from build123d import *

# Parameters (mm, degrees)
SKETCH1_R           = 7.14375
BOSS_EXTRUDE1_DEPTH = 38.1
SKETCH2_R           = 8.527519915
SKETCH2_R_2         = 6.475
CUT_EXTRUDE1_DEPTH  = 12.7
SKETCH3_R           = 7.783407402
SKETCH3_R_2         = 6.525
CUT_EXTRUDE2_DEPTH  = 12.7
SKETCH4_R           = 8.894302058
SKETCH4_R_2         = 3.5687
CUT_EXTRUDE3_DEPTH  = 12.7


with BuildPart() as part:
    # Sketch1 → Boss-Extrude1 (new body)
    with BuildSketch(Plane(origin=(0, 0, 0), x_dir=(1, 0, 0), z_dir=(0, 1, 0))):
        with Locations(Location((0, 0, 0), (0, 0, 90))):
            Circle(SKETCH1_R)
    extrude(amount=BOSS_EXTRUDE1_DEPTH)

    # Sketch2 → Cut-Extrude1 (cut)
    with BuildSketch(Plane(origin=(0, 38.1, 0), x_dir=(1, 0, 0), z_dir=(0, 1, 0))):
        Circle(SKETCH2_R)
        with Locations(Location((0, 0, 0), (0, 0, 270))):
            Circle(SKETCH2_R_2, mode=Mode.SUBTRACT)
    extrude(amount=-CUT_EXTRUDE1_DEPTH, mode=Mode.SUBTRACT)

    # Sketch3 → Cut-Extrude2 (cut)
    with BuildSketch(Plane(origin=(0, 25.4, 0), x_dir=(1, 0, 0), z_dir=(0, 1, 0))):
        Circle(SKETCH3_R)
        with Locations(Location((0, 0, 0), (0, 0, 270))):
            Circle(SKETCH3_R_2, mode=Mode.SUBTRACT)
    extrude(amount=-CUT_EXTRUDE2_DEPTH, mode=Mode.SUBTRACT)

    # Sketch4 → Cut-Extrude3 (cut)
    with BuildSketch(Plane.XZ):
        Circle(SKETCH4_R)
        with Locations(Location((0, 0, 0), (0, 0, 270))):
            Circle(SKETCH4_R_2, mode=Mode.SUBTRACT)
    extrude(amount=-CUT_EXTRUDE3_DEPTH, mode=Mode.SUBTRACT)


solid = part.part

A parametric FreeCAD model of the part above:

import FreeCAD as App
import Part
import Sketcher
from FreeCAD import Vector
Q = App.Units.Quantity

doc = App.newDocument("Part")
body = doc.addObject("PartDesign::Body", "Body")

sketch1 = doc.addObject("Sketcher::SketchObject", "Sketch")
body.addObject(sketch1)
sketch1.AttachmentSupport = (doc.XZ_Plane, [""])
sketch1.MapMode = "FlatFace"
sketch1.addGeometry(Part.Circle(Vector(0, 0, 0), Vector(0, 0, 1), 7), False)
sketch1.addConstraint(Sketcher.Constraint("Coincident", 0, 3, -1, 1))
sketch1.addConstraint(Sketcher.Constraint("Diameter", 0, Q("0.5625 in")))
pad1 = doc.addObject("PartDesign::Pad", "Pad")
body.addObject(pad1)
pad1.Profile = sketch1
pad1.Length = Q("1.5 in")
pad1.Reversed = True

sketch2 = doc.addObject("Sketcher::SketchObject", "Sketch001")
body.addObject(sketch2)
sketch2.AttachmentSupport = (doc.XZ_Plane, [""])
sketch2.MapMode = "FlatFace"
sketch2.AttachmentOffset = App.Placement(Vector(0, 0, -1.5 * 25.4), App.Rotation())
sketch2.addGeometry(Part.Circle(Vector(0, 0, 0), Vector(0, 0, 1), 9), False)
sketch2.addGeometry(Part.Circle(Vector(0, 0, 0), Vector(0, 0, 1), 6), False)
sketch2.addConstraint(Sketcher.Constraint("Coincident", 0, 3, -1, 1))
sketch2.addConstraint(Sketcher.Constraint("Coincident", 1, 3, -1, 1))
sketch2.addConstraint(Sketcher.Constraint("Diameter", 1, Q("12.95 mm")))
sketch2.addConstraint(Sketcher.Constraint("Diameter", 0, Q("17.05504 mm")))
pocket1 = doc.addObject("PartDesign::Pocket", "Pocket")
body.addObject(pocket1)
pocket1.Profile = sketch2
pocket1.Length = Q("0.5 in")
pocket1.Reversed = True

sketch3 = doc.addObject("Sketcher::SketchObject", "Sketch002")
body.addObject(sketch3)
sketch3.AttachmentSupport = (doc.XZ_Plane, [""])
sketch3.MapMode = "FlatFace"
sketch3.AttachmentOffset = App.Placement(Vector(0, 0, -1 * 25.4), App.Rotation())
sketch3.addGeometry(Part.Circle(Vector(0, 0, 0), Vector(0, 0, 1), 8), False)
sketch3.addGeometry(Part.Circle(Vector(0, 0, 0), Vector(0, 0, 1), 7), False)
sketch3.addConstraint(Sketcher.Constraint("Coincident", 0, 3, -1, 1))
sketch3.addConstraint(Sketcher.Constraint("Coincident", 1, 3, -1, 1))
sketch3.addConstraint(Sketcher.Constraint("Diameter", 1, Q("13.05 mm")))
sketch3.addConstraint(Sketcher.Constraint("Diameter", 0, Q("15.566815 mm")))
pocket2 = doc.addObject("PartDesign::Pocket", "Pocket001")
body.addObject(pocket2)
pocket2.Profile = sketch3
pocket2.Length = Q("0.5 in")
pocket2.Reversed = True

sketch4 = doc.addObject("Sketcher::SketchObject", "Sketch003")
body.addObject(sketch4)
sketch4.AttachmentSupport = (doc.XZ_Plane, [""])
sketch4.MapMode = "FlatFace"
sketch4.addGeometry(Part.Circle(Vector(0, 0, 0), Vector(0, 0, 1), 8.9), False)
sketch4.addGeometry(Part.Circle(Vector(0, 0, 0), Vector(0, 0, 1), 3.6), False)
sketch4.addConstraint(Sketcher.Constraint("Coincident", 0, 3, -1, 1))
sketch4.addConstraint(Sketcher.Constraint("Coincident", 1, 3, -1, 1))
sketch4.addConstraint(Sketcher.Constraint("Diameter", 1, Q("0.281 in")))
sketch4.addConstraint(Sketcher.Constraint("Diameter", 0, Q("17.788604 mm")))
pocket3 = doc.addObject("PartDesign::Pocket", "Pocket002")
body.addObject(pocket3)
pocket3.Profile = sketch4
pocket3.Length = Q("0.5 in")

doc.recompute()
